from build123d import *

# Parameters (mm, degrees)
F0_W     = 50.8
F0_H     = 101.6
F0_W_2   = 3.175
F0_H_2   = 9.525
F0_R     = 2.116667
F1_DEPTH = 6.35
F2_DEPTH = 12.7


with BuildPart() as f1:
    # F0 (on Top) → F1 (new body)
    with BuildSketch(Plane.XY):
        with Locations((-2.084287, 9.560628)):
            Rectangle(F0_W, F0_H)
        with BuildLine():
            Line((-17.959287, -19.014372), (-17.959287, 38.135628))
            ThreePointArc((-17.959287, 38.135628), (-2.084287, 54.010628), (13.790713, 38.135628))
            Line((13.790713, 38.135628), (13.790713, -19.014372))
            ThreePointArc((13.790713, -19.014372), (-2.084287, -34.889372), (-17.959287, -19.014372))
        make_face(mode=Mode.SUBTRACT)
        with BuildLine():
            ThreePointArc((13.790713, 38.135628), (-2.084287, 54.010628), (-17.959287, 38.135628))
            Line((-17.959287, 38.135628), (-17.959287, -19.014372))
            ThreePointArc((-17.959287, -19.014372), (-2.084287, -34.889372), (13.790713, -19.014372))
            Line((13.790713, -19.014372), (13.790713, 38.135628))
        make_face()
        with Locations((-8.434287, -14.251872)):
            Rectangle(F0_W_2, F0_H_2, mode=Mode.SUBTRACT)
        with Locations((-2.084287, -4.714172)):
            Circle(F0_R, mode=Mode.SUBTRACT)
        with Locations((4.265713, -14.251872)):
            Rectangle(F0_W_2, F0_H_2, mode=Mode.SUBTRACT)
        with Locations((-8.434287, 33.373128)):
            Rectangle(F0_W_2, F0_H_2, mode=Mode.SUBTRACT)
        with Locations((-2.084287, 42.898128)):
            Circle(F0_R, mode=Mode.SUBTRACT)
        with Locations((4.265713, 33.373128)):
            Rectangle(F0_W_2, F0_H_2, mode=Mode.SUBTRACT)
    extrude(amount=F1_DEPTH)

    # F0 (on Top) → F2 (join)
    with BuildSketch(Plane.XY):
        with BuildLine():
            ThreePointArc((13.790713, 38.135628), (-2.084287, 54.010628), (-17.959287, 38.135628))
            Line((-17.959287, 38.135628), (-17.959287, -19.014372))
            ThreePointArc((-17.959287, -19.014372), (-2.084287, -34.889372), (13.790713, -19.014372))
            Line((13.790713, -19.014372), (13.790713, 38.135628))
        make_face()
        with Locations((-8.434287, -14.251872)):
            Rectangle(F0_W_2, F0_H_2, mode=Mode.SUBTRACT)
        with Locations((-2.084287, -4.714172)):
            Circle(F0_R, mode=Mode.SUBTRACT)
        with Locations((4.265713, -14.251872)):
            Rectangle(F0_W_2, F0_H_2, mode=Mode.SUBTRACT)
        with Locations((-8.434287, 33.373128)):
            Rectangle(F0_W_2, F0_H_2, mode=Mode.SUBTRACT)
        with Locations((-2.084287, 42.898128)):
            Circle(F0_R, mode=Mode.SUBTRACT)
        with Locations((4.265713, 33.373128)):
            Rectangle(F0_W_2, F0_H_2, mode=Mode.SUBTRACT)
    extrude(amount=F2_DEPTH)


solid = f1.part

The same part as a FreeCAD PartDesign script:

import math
import FreeCAD as App
import Part
import Sketcher
from FreeCAD import Vector
Q = App.Units.Quantity

doc = App.newDocument("Part")
body = doc.addObject("PartDesign::Body", "Body")

# Sketch on XY plane
sketch1 = body.newObject("Sketcher::SketchObject", "Sketch")
sketch1.AttachmentSupport = (doc.getObject("XY_Plane"), [""])
sketch1.MapMode = "FlatFace"
sketch1.addGeometry(Part.LineSegment(Vector(-27.484287, 60.360628, 0), Vector(-27.484287, -41.239372, 0)), False)
sketch1.addGeometry(Part.LineSegment(Vector(-27.484287, -41.239372, 0), Vector(23.315713, -41.239372, 0)), False)
sketch1.addGeometry(Part.LineSegment(Vector(23.315713, -41.239372, 0), Vector(23.315713, 60.360628, 0)), False)
sketch1.addGeometry(Part.LineSegment(Vector(23.315713, 60.360628, 0), Vector(-27.484287, 60.360628, 0)), False)
sketch1.addGeometry(Part.LineSegment(Vector(-6.846787, -19.014372, 0), Vector(-10.021787, -19.014372, 0)), False)
sketch1.addGeometry(Part.LineSegment(Vector(-10.021787, -19.014372, 0), Vector(-10.021787, -9.489372, 0)), False)
sketch1.addGeometry(Part.LineSegment(Vector(-10.021787, -9.489372, 0), Vector(-6.846787, -9.489372, 0)), False)
sketch1.addGeometry(Part.LineSegment(Vector(-6.846787, -9.489372, 0), Vector(-6.846787, -19.014372, 0)), False)
sketch1.addGeometry(Part.Circle(Vector(-2.084287, -4.714172, 0), Vector(0, 0, 1), 2.116667), False)
sketch1.addGeometry(Part.LineSegment(Vector(5.853213, -19.014372, 0), Vector(2.678213, -19.014372, 0)), False)
sketch1.addGeometry(Part.LineSegment(Vector(2.678213, -19.014372, 0), Vector(2.678213, -9.489372, 0)), False)
sketch1.addGeometry(Part.LineSegment(Vector(2.678213, -9.489372, 0), Vector(5.853213, -9.489372, 0)), False)
sketch1.addGeometry(Part.LineSegment(Vector(5.853213, -9.489372, 0), Vector(5.853213, -19.014372, 0)), False)
sketch1.addGeometry(Part.LineSegment(Vector(-6.846787, 28.610628, 0), Vector(-10.021787, 28.610628, 0)), False)
sketch1.addGeometry(Part.LineSegment(Vector(-10.021787, 28.610628, 0), Vector(-10.021787, 38.135628, 0)), False)
sketch1.addGeometry(Part.LineSegment(Vector(-10.021787, 38.135628, 0), Vector(-6.846787, 38.135628, 0)), False)
sketch1.addGeometry(Part.LineSegment(Vector(-6.846787, 38.135628, 0), Vector(-6.846787, 28.610628, 0)), False)
sketch1.addGeometry(Part.Circle(Vector(-2.084287, 42.898128, 0), Vector(0, 0, 1), 2.116667), False)
sketch1.addGeometry(Part.LineSegment(Vector(5.853213, 28.610628, 0), Vector(2.678213, 28.610628, 0)), False)
sketch1.addGeometry(Part.LineSegment(Vector(2.678213, 28.610628, 0), Vector(2.678213, 38.135628, 0)), False)
sketch1.addGeometry(Part.LineSegment(Vector(2.678213, 38.135628, 0), Vector(5.853213, 38.135628, 0)), False)
sketch1.addGeometry(Part.LineSegment(Vector(5.853213, 38.135628, 0), Vector(5.853213, 28.610628, 0)), False)
sketch1.addConstraint(Sketcher.Constraint("Coincident", 0, 2, 1, 1))
sketch1.addConstraint(Sketcher.Constraint("Coincident", 1, 2, 2, 1))
sketch1.addConstraint(Sketcher.Constraint("Coincident", 2, 2, 3, 1))
sketch1.addConstraint(Sketcher.Constraint("Coincident", 3, 2, 0, 1))
sketch1.addConstraint(Sketcher.Constraint("Coincident", 4, 2, 5, 1))
sketch1.addConstraint(Sketcher.Constraint("Coincident", 5, 2, 6, 1))
sketch1.addConstraint(Sketcher.Constraint("Coincident", 6, 2, 7, 1))
sketch1.addConstraint(Sketcher.Constraint("Coincident", 7, 2, 4, 1))
sketch1.addConstraint(Sketcher.Constraint("Coincident", 9, 2, 10, 1))
sketch1.addConstraint(Sketcher.Constraint("Coincident", 10, 2, 11, 1))
sketch1.addConstraint(Sketcher.Constraint("Coincident", 11, 2, 12, 1))
sketch1.addConstraint(Sketcher.Constraint("Coincident", 12, 2, 9, 1))
sketch1.addConstraint(Sketcher.Constraint("Coincident", 13, 2, 14, 1))
sketch1.addConstraint(Sketcher.Constraint("Coincident", 14, 2, 15, 1))
sketch1.addConstraint(Sketcher.Constraint("Coincident", 15, 2, 16, 1))
sketch1.addConstraint(Sketcher.Constraint("Coincident", 16, 2, 13, 1))
sketch1.addConstraint(Sketcher.Constraint("Coincident", 18, 2, 19, 1))
sketch1.addConstraint(Sketcher.Constraint("Coincident", 19, 2, 20, 1))
sketch1.addConstraint(Sketcher.Constraint("Coincident", 20, 2, 21, 1))
sketch1.addConstraint(Sketcher.Constraint("Coincident", 21, 2, 18, 1))
sketch1.addConstraint(Sketcher.Constraint("Vertical", 0))
sketch1.addConstraint(Sketcher.Constraint("Horizontal", 1))
sketch1.addConstraint(Sketcher.Constraint("Vertical", 2))
sketch1.addConstraint(Sketcher.Constraint("Horizontal", 3))
sketch1.addConstraint(Sketcher.Constraint("Horizontal", 4))
sketch1.addConstraint(Sketcher.Constraint("Vertical", 5))
sketch1.addConstraint(Sketcher.Constraint("Horizontal", 6))
sketch1.addConstraint(Sketcher.Constraint("Vertical", 7))
sketch1.addConstraint(Sketcher.Constraint("Horizontal", 9))
sketch1.addConstraint(Sketcher.Constraint("Vertical", 10))
sketch1.addConstraint(Sketcher.Constraint("Horizontal", 11))
sketch1.addConstraint(Sketcher.Constraint("Vertical", 12))
sketch1.addConstraint(Sketcher.Constraint("Horizontal", 13))
sketch1.addConstraint(Sketcher.Constraint("Vertical", 14))
sketch1.addConstraint(Sketcher.Constraint("Horizontal", 15))
sketch1.addConstraint(Sketcher.Constraint("Vertical", 16))
sketch1.addConstraint(Sketcher.Constraint("Horizontal", 18))
sketch1.addConstraint(Sketcher.Constraint("Vertical", 19))
sketch1.addConstraint(Sketcher.Constraint("Horizontal", 20))
sketch1.addConstraint(Sketcher.Constraint("Vertical", 21))
sketch1.addConstraint(Sketcher.Constraint("Equal", 8, 17))
sketch1.addConstraint(Sketcher.Constraint("Horizontal", 7, 2, 9, 2))
sketch1.addConstraint(Sketcher.Constraint("Horizontal", 6, 2, 10, 2))
sketch1.addConstraint(Sketcher.Constraint("Horizontal", 16, 2, 18, 2))
sketch1.addConstraint(Sketcher.Constraint("Horizontal", 15, 2, 19, 2))
sketch1.addConstraint(Sketcher.Constraint("Vertical", 8, 3, 17, 3))
sketch1.addConstraint(Sketcher.Constraint("Vertical", 5, 2, 13, 2))
sketch1.addConstraint(Sketcher.Constraint("Vertical", 7, 2, 15, 2))
sketch1.addConstraint(Sketcher.Constraint("Vertical", 10, 2, 18, 2))
sketch1.addConstraint(Sketcher.Constraint("Vertical", 12, 2, 20, 2))
sketch1.addConstraint(Sketcher.Constraint("Equal", 6, 9))
sketch1.addConstraint(Sketcher.Constraint("Equal", 12, 14))
sketch1.addConstraint(Sketcher.Constraint("DistanceX", 1, 1, 1, 2, Q("2 in")))
sketch1.addConstraint(Sketcher.Constraint("DistanceY", 0, 2, 0, 1, Q("4 in")))
sketch1.addConstraint(Sketcher.Constraint("DistanceX", 0, 2, 8, 3, Q("1 in")))
sketch1.addConstraint(Sketcher.Constraint("DistanceX", 4, 2, 9, 2, Q("0.5 in")))
sketch1.addConstraint(Sketcher.Constraint("DistanceY", 5, 2, 13, 2, Q("1.5 in")))
sketch1.addConstraint(Sketcher.Constraint("DistanceX", 4, 2, 4, 1, Q("0.125 in")))
sketch1.addConstraint(Sketcher.Constraint("DistanceY", 5, 1, 5, 2, Q("0.375 in")))
sketch1.addConstraint(Sketcher.Constraint("DistanceY", 0, 2, 5, 2, Q("1.25 in")))
sketch1.addConstraint(Sketcher.Constraint("DistanceY", 0, 2, 8, 3, Q("1.438 in")))
sketch1.addConstraint(Sketcher.Constraint("DistanceY", 0, 2, 17, 3, Q("3.3125 in")))
sketch1.addConstraint(Sketcher.Constraint("DistanceX", 4, 2, 8, 3, Q("0.3125 in")))
sketch1.addConstraint(Sketcher.Constraint("Diameter", 8, Q("4.233334 mm")))
sketch1.addConstraint(Sketcher.Constraint("DistanceY", 8, 3, -1, 1, Q("4.714172 mm")))
sketch1.addConstraint(Sketcher.Constraint("DistanceX", 8, 3, -1, 1, Q("2.084287 mm")))
pad1 = body.newObject("PartDesign::Pad", "Pad")
pad1.Profile = sketch1
pad1.Length = Q("0.25 in")

# Sketch on XY plane
sketch2 = body.newObject("Sketcher::SketchObject", "Sketch001")
sketch2.AttachmentSupport = (doc.getObject("XY_Plane"), [""])
sketch2.MapMode = "FlatFace"
sketch2.addGeometry(Part.ArcOfCircle(Part.Circle(Vector(-2.084287, 38.135628, 0), Vector(0, 0, 1), 15.875), math.radians(0), math.radians(180)), False)
sketch2.addGeometry(Part.LineSegment(Vector(-17.959287, 38.135628, 0), Vector(-17.959287, -19.014372, 0)), False)
sketch2.addGeometry(Part.ArcOfCircle(Part.Circle(Vector(-2.084287, -19.014372, 0), Vector(0, 0, 1), 15.875), math.radians(180), math.radians(360)), False)
sketch2.addGeometry(Part.LineSegment(Vector(13.790713, -19.014372, 0), Vector(13.790713, 38.135628, 0)), False)
sketch2.addGeometry(Part.LineSegment(Vector(-6.846787, -19.014372, 0), Vector(-10.021787, -19.014372, 0)), False)
sketch2.addGeometry(Part.LineSegment(Vector(-10.021787, -19.014372, 0), Vector(-10.021787, -9.489372, 0)), False)
sketch2.addGeometry(Part.LineSegment(Vector(-10.021787, -9.489372, 0), Vector(-6.846787, -9.489372, 0)), False)
sketch2.addGeometry(Part.LineSegment(Vector(-6.846787, -9.489372, 0), Vector(-6.846787, -19.014372, 0)), False)
sketch2.addGeometry(Part.Circle(Vector(-2.084287, -4.714172, 0), Vector(0, 0, 1), 2.116667), False)
sketch2.addGeometry(Part.LineSegment(Vector(5.853213, -19.014372, 0), Vector(2.678213, -19.014372, 0)), False)
sketch2.addGeometry(Part.LineSegment(Vector(2.678213, -19.014372, 0), Vector(2.678213, -9.489372, 0)), False)
sketch2.addGeometry(Part.LineSegment(Vector(2.678213, -9.489372, 0), Vector(5.853213, -9.489372, 0)), False)
sketch2.addGeometry(Part.LineSegment(Vector(5.853213, -9.489372, 0), Vector(5.853213, -19.014372, 0)), False)
sketch2.addGeometry(Part.LineSegment(Vector(-6.846787, 28.610628, 0), Vector(-10.021787, 28.610628, 0)), False)
sketch2.addGeometry(Part.LineSegment(Vector(-10.021787, 28.610628, 0), Vector(-10.021787, 38.135628, 0)), False)
sketch2.addGeometry(Part.LineSegment(Vector(-10.021787, 38.135628, 0), Vector(-6.846787, 38.135628, 0)), False)
sketch2.addGeometry(Part.LineSegment(Vector(-6.846787, 38.135628, 0), Vector(-6.846787, 28.610628, 0)), False)
sketch2.addGeometry(Part.Circle(Vector(-2.084287, 42.898128, 0), Vector(0, 0, 1), 2.116667), False)
sketch2.addGeometry(Part.LineSegment(Vector(5.853213, 28.610628, 0), Vector(2.678213, 28.610628, 0)), False)
sketch2.addGeometry(Part.LineSegment(Vector(2.678213, 28.610628, 0), Vector(2.678213, 38.135628, 0)), False)
sketch2.addGeometry(Part.LineSegment(Vector(2.678213, 38.135628, 0), Vector(5.853213, 38.135628, 0)), False)
sketch2.addGeometry(Part.LineSegment(Vector(5.853213, 38.135628, 0), Vector(5.853213, 28.610628, 0)), False)
sketch2.addConstraint(Sketcher.Constraint("Tangent", 0, 2, 1, 1))
sketch2.addConstraint(Sketcher.Constraint("Tangent", 1, 2, 2, 1))
sketch2.addConstraint(Sketcher.Constraint("Tangent", 2, 2, 3, 1))
sketch2.addConstraint(Sketcher.Constraint("Tangent", 3, 2, 0, 1))
sketch2.addConstraint(Sketcher.Constraint("Coincident", 4, 2, 5, 1))
sketch2.addConstraint(Sketcher.Constraint("Coincident", 5, 2, 6, 1))
sketch2.addConstraint(Sketcher.Constraint("Coincident", 6, 2, 7, 1))
sketch2.addConstraint(Sketcher.Constraint("Coincident", 7, 2, 4, 1))
sketch2.addConstraint(Sketcher.Constraint("Coincident", 9, 2, 10, 1))
sketch2.addConstraint(Sketcher.Constraint("Coincident", 10, 2, 11, 1))
sketch2.addConstraint(Sketcher.Constraint("Coincident", 11, 2, 12, 1))
sketch2.addConstraint(Sketcher.Constraint("Coincident", 12, 2, 9, 1))
sketch2.addConstraint(Sketcher.Constraint("Coincident", 13, 2, 14, 1))
sketch2.addConstraint(Sketcher.Constraint("Coincident", 14, 2, 15, 1))
sketch2.addConstraint(Sketcher.Constraint("Coincident", 15, 2, 16, 1))
sketch2.addConstraint(Sketcher.Constraint("Coincident", 16, 2, 13, 1))
sketch2.addConstraint(Sketcher.Constraint("Coincident", 18, 2, 19, 1))
sketch2.addConstraint(Sketcher.Constraint("Coincident", 19, 2, 20, 1))
sketch2.addConstraint(Sketcher.Constraint("Coincident", 20, 2, 21, 1))
sketch2.addConstraint(Sketcher.Constraint("Coincident", 21, 2, 18, 1))
sketch2.addConstraint(Sketcher.Constraint("Vertical", 1))
sketch2.addConstraint(Sketcher.Constraint("Vertical", 3))
sketch2.addConstraint(Sketcher.Constraint("Horizontal", 4))
sketch2.addConstraint(Sketcher.Constraint("Vertical", 5))
sketch2.addConstraint(Sketcher.Constraint("Horizontal", 6))
sketch2.addConstraint(Sketcher.Constraint("Vertical", 7))
sketch2.addConstraint(Sketcher.Constraint("Horizontal", 9))
sketch2.addConstraint(Sketcher.Constraint("Vertical", 10))
sketch2.addConstraint(Sketcher.Constraint("Horizontal", 11))
sketch2.addConstraint(Sketcher.Constraint("Vertical", 12))
sketch2.addConstraint(Sketcher.Constraint("Horizontal", 13))
sketch2.addConstraint(Sketcher.Constraint("Vertical", 14))
sketch2.addConstraint(Sketcher.Constraint("Horizontal", 15))
sketch2.addConstraint(Sketcher.Constraint("Vertical", 16))
sketch2.addConstraint(Sketcher.Constraint("Horizontal", 18))
sketch2.addConstraint(Sketcher.Constraint("Vertical", 19))
sketch2.addConstraint(Sketcher.Constraint("Horizontal", 20))
sketch2.addConstraint(Sketcher.Constraint("Vertical", 21))
sketch2.addConstraint(Sketcher.Constraint("Equal", 8, 17))
sketch2.addConstraint(Sketcher.Constraint("Horizontal", 2, 2, 4, 2))
sketch2.addConstraint(Sketcher.Constraint("Horizontal", 7, 2, 9, 2))
sketch2.addConstraint(Sketcher.Constraint("Horizontal", 6, 2, 10, 2))
sketch2.addConstraint(Sketcher.Constraint("Horizontal", 3, 2, 14, 2))
sketch2.addConstraint(Sketcher.Constraint("Horizontal", 16, 2, 18, 2))
sketch2.addConstraint(Sketcher.Constraint("Horizontal", 15, 2, 19, 2))
sketch2.addConstraint(Sketcher.Constraint("Vertical", 2, 3, 8, 3))
sketch2.addConstraint(Sketcher.Constraint("Vertical", 8, 3, 17, 3))
sketch2.addConstraint(Sketcher.Constraint("Vertical", 5, 2, 13, 2))
sketch2.addConstraint(Sketcher.Constraint("Vertical", 7, 2, 15, 2))
sketch2.addConstraint(Sketcher.Constraint("Vertical", 10, 2, 18, 2))
sketch2.addConstraint(Sketcher.Constraint("Vertical", 12, 2, 20, 2))
sketch2.addConstraint(Sketcher.Constraint("Equal", 6, 9))
sketch2.addConstraint(Sketcher.Constraint("Equal", 12, 14))
sketch2.addConstraint(Sketcher.Constraint("Radius", 0, Q("0.625 in")))
sketch2.addConstraint(Sketcher.Constraint("DistanceY", 1, 2, 1, 1, Q("2.25 in")))
sketch2.addConstraint(Sketcher.Constraint("DistanceX", 4, 2, 9, 2, Q("0.5 in")))
sketch2.addConstraint(Sketcher.Constraint("DistanceX", 4, 2, 4, 1, Q("0.125 in")))
sketch2.addConstraint(Sketcher.Constraint("DistanceY", 5, 1, 5, 2, Q("0.375 in")))
sketch2.addConstraint(Sketcher.Constraint("DistanceY", 2, 3, 8, 3, Q("0.563 in")))
sketch2.addConstraint(Sketcher.Constraint("DistanceY", 0, 3, 17, 3, Q("0.1875 in")))
sketch2.addConstraint(Sketcher.Constraint("DistanceX", 4, 2, 2, 3, Q("0.3125 in")))
sketch2.addConstraint(Sketcher.Constraint("Diameter", 8, Q("4.233334 mm")))
sketch2.addConstraint(Sketcher.Constraint("DistanceY", 8, 3, -1, 1, Q("4.714172 mm")))
sketch2.addConstraint(Sketcher.Constraint("DistanceX", 0, 3, -1, 1, Q("2.084287 mm")))
pad2 = body.newObject("PartDesign::Pad", "Pad001")
pad2.Profile = sketch2
pad2.Length = Q("0.5 in")

doc.recompute()
